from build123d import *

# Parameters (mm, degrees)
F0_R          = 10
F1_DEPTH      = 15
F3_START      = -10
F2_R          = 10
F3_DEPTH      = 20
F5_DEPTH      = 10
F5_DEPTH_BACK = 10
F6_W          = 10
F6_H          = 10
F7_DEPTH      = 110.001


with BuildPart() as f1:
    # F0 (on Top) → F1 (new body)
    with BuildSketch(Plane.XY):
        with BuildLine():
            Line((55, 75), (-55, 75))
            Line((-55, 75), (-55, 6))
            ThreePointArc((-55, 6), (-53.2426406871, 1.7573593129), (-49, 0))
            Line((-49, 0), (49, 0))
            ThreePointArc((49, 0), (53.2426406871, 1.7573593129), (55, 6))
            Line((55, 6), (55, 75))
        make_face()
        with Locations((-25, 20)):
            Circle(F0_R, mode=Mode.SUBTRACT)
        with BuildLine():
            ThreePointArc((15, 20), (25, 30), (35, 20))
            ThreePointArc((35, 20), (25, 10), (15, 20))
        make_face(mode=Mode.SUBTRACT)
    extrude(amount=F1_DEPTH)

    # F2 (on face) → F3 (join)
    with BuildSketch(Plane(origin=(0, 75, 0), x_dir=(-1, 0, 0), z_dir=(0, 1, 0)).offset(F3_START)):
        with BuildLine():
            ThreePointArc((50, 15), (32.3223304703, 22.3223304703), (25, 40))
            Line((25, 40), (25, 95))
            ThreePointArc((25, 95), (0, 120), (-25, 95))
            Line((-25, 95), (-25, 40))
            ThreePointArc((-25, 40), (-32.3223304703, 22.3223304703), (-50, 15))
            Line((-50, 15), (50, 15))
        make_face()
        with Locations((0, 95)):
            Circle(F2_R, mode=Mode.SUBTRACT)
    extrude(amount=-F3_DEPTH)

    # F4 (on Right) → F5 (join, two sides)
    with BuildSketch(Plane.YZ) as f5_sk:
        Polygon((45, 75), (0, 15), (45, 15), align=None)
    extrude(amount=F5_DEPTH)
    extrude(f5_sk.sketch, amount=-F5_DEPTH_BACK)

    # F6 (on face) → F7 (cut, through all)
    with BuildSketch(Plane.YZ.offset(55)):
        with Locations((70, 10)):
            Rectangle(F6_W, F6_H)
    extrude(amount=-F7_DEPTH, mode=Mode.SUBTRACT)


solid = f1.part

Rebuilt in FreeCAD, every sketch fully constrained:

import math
import FreeCAD as App
import Part
import Sketcher

V = App.Vector
Q = App.Units.Quantity


def add_polygon(sketch, points):
    """Adds a closed chain of lines whose ends are joined by coincident constraints."""
    first, n = sketch.GeometryCount, len(points)
    for a, b in zip(points, points[1:] + points[:1]):
        sketch.addGeometry(Part.LineSegment(App.Vector(*a, 0), App.Vector(*b, 0)), False)
    for i in range(n):
        sketch.addConstraint(Sketcher.Constraint("Coincident", first + i, 2, first + (i + 1) % n, 1))

doc = App.newDocument("Part")
body = doc.addObject("PartDesign::Body", "Body")

sketch1 = body.newObject("Sketcher::SketchObject", "Sketch")
sketch1.AttachmentSupport = (doc.getObject("XY_Plane"), [""])
sketch1.MapMode = "FlatFace"
sketch1.addGeometry(Part.LineSegment(V(55, 75, 0), V(-55, 75, 0)), False)
sketch1.addGeometry(Part.LineSegment(V(-55, 75, 0), V(-55, 6, 0)), False)
sketch1.addGeometry(Part.ArcOfCircle(Part.Circle(V(-49, 6, 0), V(0, 0, 1), 6), math.radians(180), math.radians(270)), False)
sketch1.addGeometry(Part.LineSegment(V(-49, 0, 0), V(49, 0, 0)), False)
sketch1.addGeometry(Part.ArcOfCircle(Part.Circle(V(49, 6, 0), V(0, 0, 1), 6), math.radians(-90), math.radians(0)), False)
sketch1.addGeometry(Part.LineSegment(V(55, 6, 0), V(55, 75, 0)), False)
sketch1.addGeometry(Part.Circle(V(-25, 20, 0), V(0, 0, 1), 10), False)
sketch1.addGeometry(Part.Circle(V(25, 20, 0), V(0, 0, 1), 10), False)
sketch1.addConstraint(Sketcher.Constraint("Coincident", 0, 2, 1, 1))
sketch1.addConstraint(Sketcher.Constraint("Tangent", 1, 2, 2, 1))
sketch1.addConstraint(Sketcher.Constraint("Tangent", 2, 2, 3, 1))
sketch1.addConstraint(Sketcher.Constraint("Tangent", 3, 2, 4, 1))
sketch1.addConstraint(Sketcher.Constraint("Tangent", 4, 2, 5, 1))
sketch1.addConstraint(Sketcher.Constraint("Coincident", 5, 2, 0, 1))
sketch1.addConstraint(Sketcher.Constraint("Horizontal", 0))
sketch1.addConstraint(Sketcher.Constraint("Vertical", 1))
sketch1.addConstraint(Sketcher.Constraint("Horizontal", 3))
sketch1.addConstraint(Sketcher.Constraint("Vertical", 5))
sketch1.addConstraint(Sketcher.Constraint("Equal", 2, 4))
sketch1.addConstraint(Sketcher.Constraint("Equal", 6, 7))
sketch1.addConstraint(Sketcher.Constraint("Symmetric", 2, 2, 3, 2, -1, 1))
sketch1.addConstraint(Sketcher.Constraint("Symmetric", 6, 3, 7, 3, -2))
sketch1.addConstraint(Sketcher.Constraint("Diameter", 6, Q("20 mm")))
sketch1.addConstraint(Sketcher.Constraint("Radius", 2, Q("6 mm")))
sketch1.addConstraint(Sketcher.Constraint("DistanceX", 0, 2, 0, 1, Q("110 mm")))
sketch1.addConstraint(Sketcher.Constraint("DistanceY", 1, 2, 1, 1, Q("69 mm")))
sketch1.addConstraint(Sketcher.Constraint("DistanceX", 6, 3, -1, 1, Q("25 mm")))
sketch1.addConstraint(Sketcher.Constraint("DistanceY", -1, 1, 6, 3, Q("20 mm")))
pad1 = body.newObject("PartDesign::Pad", "Pad")
pad1.Profile = sketch1
pad1.Length = 15

sketch2 = body.newObject("Sketcher::SketchObject", "Sketch001")
sketch2.AttachmentSupport = (doc.getObject("XZ_Plane"), [""])
sketch2.MapMode = "FlatFace"
sketch2.AttachmentOffset = App.Placement(V(0, 0, -65), App.Rotation())
sketch2.addGeometry(Part.ArcOfCircle(Part.Circle(V(-50, 40, 0), V(0, 0, 1), 25), math.radians(-90), math.radians(0)), False)
sketch2.addGeometry(Part.LineSegment(V(-25, 40, 0), V(-25, 95, 0)), False)
sketch2.addGeometry(Part.ArcOfCircle(Part.Circle(V(0, 95, 0), V(0, 0, 1), 25), math.radians(0), math.radians(180)), False)
sketch2.addGeometry(Part.LineSegment(V(25, 95, 0), V(25, 40, 0)), False)
sketch2.addGeometry(Part.ArcOfCircle(Part.Circle(V(50, 40, 0), V(0, 0, 1), 25), math.radians(180), math.radians(270)), False)
sketch2.addGeometry(Part.LineSegment(V(50, 15, 0), V(-50, 15, 0)), False)
sketch2.addGeometry(Part.Circle(V(0, 95, 0), V(0, 0, 1), 10), False)
sketch2.addConstraint(Sketcher.Constraint("Tangent", 0, 2, 1, 1))
sketch2.addConstraint(Sketcher.Constraint("Tangent", 1, 2, 2, 2))
sketch2.addConstraint(Sketcher.Constraint("Tangent", 2, 1, 3, 1))
sketch2.addConstraint(Sketcher.Constraint("Tangent", 3, 2, 4, 1))
sketch2.addConstraint(Sketcher.Constraint("Tangent", 4, 2, 5, 1))
sketch2.addConstraint(Sketcher.Constraint("Tangent", 5, 2, 0, 1))
sketch2.addConstraint(Sketcher.Constraint("Vertical", 1))
sketch2.addConstraint(Sketcher.Constraint("Vertical", 3))
sketch2.addConstraint(Sketcher.Constraint("Horizontal", 5))
sketch2.addConstraint(Sketcher.Constraint("Coincident", 6, 3, 2, 3))
sketch2.addConstraint(Sketcher.Constraint("Equal", 0, 2))
sketch2.addConstraint(Sketcher.Constraint("Equal", 2, 4))
sketch2.addConstraint(Sketcher.Constraint("PointOnObject", 2, 3, -2))
sketch2.addConstraint(Sketcher.Constraint("Diameter", 6, Q("20 mm")))
sketch2.addConstraint(Sketcher.Constraint("Radius", 0, Q("25 mm")))
sketch2.addConstraint(Sketcher.Constraint("DistanceY", 1, 1, 1, 2, Q("55 mm")))
sketch2.addConstraint(Sketcher.Constraint("DistanceY", -1, 1, 0, 3, Q("40 mm")))
pad2 = body.newObject("PartDesign::Pad", "Pad001")
pad2.Profile = sketch2
pad2.Length = 20

sketch3 = body.newObject("Sketcher::SketchObject", "Sketch002")
sketch3.AttachmentSupport = (doc.getObject("YZ_Plane"), [""])
sketch3.MapMode = "FlatFace"
add_polygon(sketch3, [(45, 75), (0, 15), (45, 15)])
sketch3.addConstraint(Sketcher.Constraint("Horizontal", 1))
sketch3.addConstraint(Sketcher.Constraint("Vertical", 2))
sketch3.addConstraint(Sketcher.Constraint("PointOnObject", 0, 2, -2))
sketch3.addConstraint(Sketcher.Constraint("DistanceX", 1, 1, 1, 2, Q("45 mm")))
sketch3.addConstraint(Sketcher.Constraint("DistanceY", 2, 1, 2, 2, Q("60 mm")))
sketch3.addConstraint(Sketcher.Constraint("DistanceY", -1, 1, 0, 2, Q("15 mm")))
pad3 = body.newObject("PartDesign::Pad", "Pad002")
pad3.Profile = sketch3
pad3.Type = "TwoLengths"
pad3.Length = 10
pad3.Length2 = 10

sketch4 = body.newObject("Sketcher::SketchObject", "Sketch003")
sketch4.AttachmentSupport = (doc.getObject("YZ_Plane"), [""])
sketch4.MapMode = "FlatFace"
sketch4.AttachmentOffset = App.Placement(V(0, 0, 55), App.Rotation())
add_polygon(sketch4, [(65, 15), (65, 5), (75, 5), (75, 15)])
sketch4.addConstraint(Sketcher.Constraint("Vertical", 0))
sketch4.addConstraint(Sketcher.Constraint("Horizontal", 1))
sketch4.addConstraint(Sketcher.Constraint("Vertical", 2))
sketch4.addConstraint(Sketcher.Constraint("Horizontal", 3))
sketch4.addConstraint(Sketcher.Constraint("Equal", 3, 0))
sketch4.addConstraint(Sketcher.Constraint("DistanceX", 1, 1, 1, 2, Q("10 mm")))
sketch4.addConstraint(Sketcher.Constraint("DistanceX", -1, 1, 0, 2, Q("65 mm")))
sketch4.addConstraint(Sketcher.Constraint("DistanceY", -1, 1, 0, 2, Q("5 mm")))
pocket1 = body.newObject("PartDesign::Pocket", "Pocket")
pocket1.Profile = sketch4
pocket1.Type = "ThroughAll"

doc.recompute()
